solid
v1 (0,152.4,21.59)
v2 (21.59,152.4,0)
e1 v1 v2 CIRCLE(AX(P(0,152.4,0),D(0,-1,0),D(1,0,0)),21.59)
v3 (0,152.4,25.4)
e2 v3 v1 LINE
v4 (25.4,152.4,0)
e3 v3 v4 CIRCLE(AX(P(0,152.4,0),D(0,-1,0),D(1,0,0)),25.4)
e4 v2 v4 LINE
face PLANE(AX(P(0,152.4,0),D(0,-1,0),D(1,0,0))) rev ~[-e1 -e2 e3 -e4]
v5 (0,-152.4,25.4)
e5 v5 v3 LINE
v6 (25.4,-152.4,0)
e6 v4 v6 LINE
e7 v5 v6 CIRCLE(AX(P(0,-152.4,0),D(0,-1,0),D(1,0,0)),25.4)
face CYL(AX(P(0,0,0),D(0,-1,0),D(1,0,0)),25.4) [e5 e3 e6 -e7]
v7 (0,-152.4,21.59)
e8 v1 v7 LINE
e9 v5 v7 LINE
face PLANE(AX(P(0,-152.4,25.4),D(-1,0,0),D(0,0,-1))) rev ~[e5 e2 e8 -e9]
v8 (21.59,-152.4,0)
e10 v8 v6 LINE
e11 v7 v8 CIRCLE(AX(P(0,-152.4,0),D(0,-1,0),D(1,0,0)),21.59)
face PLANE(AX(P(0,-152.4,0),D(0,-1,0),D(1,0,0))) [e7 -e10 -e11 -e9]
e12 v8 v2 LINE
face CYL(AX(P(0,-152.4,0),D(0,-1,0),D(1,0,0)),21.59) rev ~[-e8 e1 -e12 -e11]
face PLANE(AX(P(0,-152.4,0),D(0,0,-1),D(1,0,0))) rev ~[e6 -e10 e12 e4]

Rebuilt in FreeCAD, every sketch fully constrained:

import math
import FreeCAD as App
import Part
import Sketcher

V = App.Vector
Q = App.Units.Quantity

doc = App.newDocument("Part")
params = doc.addObject("Spreadsheet::Sheet", "Params")
for row, (alias, value) in enumerate([
    ("sketch1_diameter", "2 in"),
    ("pad1_length", "12 in"),
    ("sketch2_radius", "1 in"),
    ("sketch3_diameter", "1.7 in"),
], start=1):
    params.set(f"A{row}", alias)
    params.set(f"B{row}", "=" + value)
    params.setAlias(f"B{row}", alias)

body = doc.addObject("PartDesign::Body", "Body")

sketch1 = body.newObject("Sketcher::SketchObject", "Sketch")
sketch1.AttachmentSupport = (doc.getObject("XZ_Plane"), [""])
sketch1.MapMode = "FlatFace"
sketch1.addGeometry(Part.Circle(V(0, 0, 0), V(0, 0, 1), 25), False)
sketch1.addConstraint([
    Sketcher.Constraint("Coincident", 0, 3, -1, 1),
    Sketcher.Constraint("Diameter", 0, Q("2 in")),
])
sketch1.setExpression("Constraints[1]", "Params.sketch1_diameter")
pad1 = body.newObject("PartDesign::Pad", "Pad")
pad1.Profile = sketch1
pad1.setExpression("Length", "Params.pad1_length")
pad1.Midplane = True

sketch2 = body.newObject("Sketcher::SketchObject", "Sketch001")
sketch2.AttachmentSupport = (doc.getObject("XZ_Plane"), [""])
sketch2.MapMode = "FlatFace"
sketch2.AttachmentOffset = App.Placement(V(0, 0, 6 * 25.4), App.Rotation())
sketch2.addGeometry([
    Part.LineSegment(V(0, 25, 0), V(0, 0, 0)),
    Part.LineSegment(V(0, 0, 0), V(25, 0, 0)),
    Part.ArcOfCircle(Part.Circle(V(0, 0, 0), V(0, 0, 1), 25), math.radians(0), math.radians(90)),
], False)
sketch2.addConstraint([
    Sketcher.Constraint("Coincident", 0, 2, 1, 1),
    Sketcher.Constraint("Coincident", 1, 2, 2, 1),
    Sketcher.Constraint("Coincident", 2, 2, 0, 1),
    Sketcher.Constraint("Vertical", 0),
    Sketcher.Constraint("Horizontal", 1),
    Sketcher.Constraint("Coincident", 2, 3, -1, 1),
    Sketcher.Constraint("Coincident", 0, 2, -1, 1),
    Sketcher.Constraint("Radius", 2, Q("1 in")),
])
sketch2.setExpression("Constraints[7]", "Params.sketch2_radius")
pocket1 = body.newObject("PartDesign::Pocket", "Pocket")
pocket1.Profile = sketch2
pocket1.Type = "ThroughAll"

sketch3 = body.newObject("Sketcher::SketchObject", "Sketch002")
sketch3.AttachmentSupport = (doc.getObject("XZ_Plane"), [""])
sketch3.MapMode = "FlatFace"
sketch3.AttachmentOffset = App.Placement(V(0, 0, 6 * 25.4), App.Rotation())
sketch3.addGeometry(Part.Circle(V(0, 0, 0), V(0, 0, 1), 22), False)
sketch3.addConstraint([
    Sketcher.Constraint("Coincident", 0, 3, -1, 1),
    Sketcher.Constraint("Diameter", 0, Q("1.7 in")),
])
sketch3.setExpression("Constraints[1]", "Params.sketch3_diameter")
pocket2 = body.newObject("PartDesign::Pocket", "Pocket001")
pocket2.Profile = sketch3
pocket2.Type = "ThroughAll"

doc.recompute()
